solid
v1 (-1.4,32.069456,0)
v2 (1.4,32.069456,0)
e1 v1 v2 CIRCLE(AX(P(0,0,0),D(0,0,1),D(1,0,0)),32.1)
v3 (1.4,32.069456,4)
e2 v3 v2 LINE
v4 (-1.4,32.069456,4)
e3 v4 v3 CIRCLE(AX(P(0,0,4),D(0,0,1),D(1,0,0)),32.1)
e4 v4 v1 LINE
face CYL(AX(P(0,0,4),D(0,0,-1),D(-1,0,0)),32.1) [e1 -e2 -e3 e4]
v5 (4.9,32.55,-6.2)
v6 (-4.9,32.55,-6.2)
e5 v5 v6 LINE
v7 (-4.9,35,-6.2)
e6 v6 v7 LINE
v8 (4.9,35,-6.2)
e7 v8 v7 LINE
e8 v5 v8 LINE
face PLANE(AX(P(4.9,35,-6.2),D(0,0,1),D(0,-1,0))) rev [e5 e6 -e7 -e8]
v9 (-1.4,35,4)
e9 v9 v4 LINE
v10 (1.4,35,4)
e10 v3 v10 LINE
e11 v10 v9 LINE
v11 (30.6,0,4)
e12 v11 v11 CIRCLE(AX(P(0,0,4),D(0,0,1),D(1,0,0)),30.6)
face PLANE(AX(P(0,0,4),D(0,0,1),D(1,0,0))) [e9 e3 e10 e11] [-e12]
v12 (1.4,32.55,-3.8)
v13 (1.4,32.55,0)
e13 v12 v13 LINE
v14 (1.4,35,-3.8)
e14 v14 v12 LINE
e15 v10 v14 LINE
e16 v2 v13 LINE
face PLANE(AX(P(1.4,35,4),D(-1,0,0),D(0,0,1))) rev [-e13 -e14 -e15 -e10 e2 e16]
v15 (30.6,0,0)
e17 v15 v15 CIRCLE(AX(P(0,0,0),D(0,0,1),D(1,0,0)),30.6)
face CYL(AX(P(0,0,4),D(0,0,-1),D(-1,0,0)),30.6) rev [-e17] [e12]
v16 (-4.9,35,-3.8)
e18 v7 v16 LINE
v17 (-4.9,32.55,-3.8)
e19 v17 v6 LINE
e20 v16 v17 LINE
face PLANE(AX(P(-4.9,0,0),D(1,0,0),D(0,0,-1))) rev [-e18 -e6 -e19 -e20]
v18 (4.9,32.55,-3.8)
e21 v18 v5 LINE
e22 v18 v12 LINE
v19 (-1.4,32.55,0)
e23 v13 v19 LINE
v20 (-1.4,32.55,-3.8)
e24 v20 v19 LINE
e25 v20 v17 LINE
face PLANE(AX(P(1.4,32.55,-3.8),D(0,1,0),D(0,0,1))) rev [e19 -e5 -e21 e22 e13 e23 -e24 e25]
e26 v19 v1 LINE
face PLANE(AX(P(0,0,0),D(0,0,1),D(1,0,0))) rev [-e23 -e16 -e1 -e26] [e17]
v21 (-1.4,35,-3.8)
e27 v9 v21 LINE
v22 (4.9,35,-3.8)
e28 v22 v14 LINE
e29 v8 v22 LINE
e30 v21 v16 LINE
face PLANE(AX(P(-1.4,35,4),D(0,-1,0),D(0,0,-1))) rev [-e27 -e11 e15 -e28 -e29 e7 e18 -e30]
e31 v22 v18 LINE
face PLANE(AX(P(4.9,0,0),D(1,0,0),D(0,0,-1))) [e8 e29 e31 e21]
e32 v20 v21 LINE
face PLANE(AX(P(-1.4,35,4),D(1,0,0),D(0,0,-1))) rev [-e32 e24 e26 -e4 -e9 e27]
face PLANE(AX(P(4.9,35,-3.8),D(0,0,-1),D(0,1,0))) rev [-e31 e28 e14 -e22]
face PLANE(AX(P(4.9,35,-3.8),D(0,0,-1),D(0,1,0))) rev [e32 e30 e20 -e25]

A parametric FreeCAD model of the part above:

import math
import FreeCAD as App
import Part
import Sketcher

V = App.Vector
Q = App.Units.Quantity


def add_polygon(sketch, points):
    """Adds a closed chain of lines whose ends are joined by coincident constraints."""
    first, n = sketch.GeometryCount, len(points)
    for a, b in zip(points, points[1:] + points[:1]):
        sketch.addGeometry(Part.LineSegment(App.Vector(*a, 0), App.Vector(*b, 0)), False)
    for i in range(n):
        sketch.addConstraint(Sketcher.Constraint("Coincident", first + i, 2, first + (i + 1) % n, 1))

doc = App.newDocument("Part")
body = doc.addObject("PartDesign::Body", "Body")

sketch1 = body.newObject("Sketcher::SketchObject", "Sketch")
sketch1.AttachmentSupport = (doc.getObject("XY_Plane"), [""])
sketch1.MapMode = "FlatFace"
sketch1.addGeometry(Part.LineSegment(V(1.4, 35, 0), V(-1.4, 35, 0)), False)
sketch1.addGeometry(Part.LineSegment(V(-1.4, 35, 0), V(-1.4, 32.1, 0)), False)
sketch1.addGeometry(Part.ArcOfCircle(Part.Circle(V(0, 0, 0), V(0, 0, 1), 32.1), math.radians(92), math.radians(448)), False)
sketch1.addGeometry(Part.LineSegment(V(1.4, 32.1, 0), V(1.4, 35, 0)), False)
sketch1.addGeometry(Part.Circle(V(0, 0, 0), V(0, 0, 1), 30.6), False)
sketch1.addConstraint(Sketcher.Constraint("Coincident", 0, 2, 1, 1))
sketch1.addConstraint(Sketcher.Constraint("Coincident", 1, 2, 2, 1))
sketch1.addConstraint(Sketcher.Constraint("Coincident", 2, 2, 3, 1))
sketch1.addConstraint(Sketcher.Constraint("Coincident", 3, 2, 0, 1))
sketch1.addConstraint(Sketcher.Constraint("Horizontal", 0))
sketch1.addConstraint(Sketcher.Constraint("Vertical", 1))
sketch1.addConstraint(Sketcher.Constraint("Vertical", 3))
sketch1.addConstraint(Sketcher.Constraint("Coincident", 2, 3, -1, 1))
sketch1.addConstraint(Sketcher.Constraint("Coincident", 4, 3, -1, 1))
sketch1.addConstraint(Sketcher.Constraint("Horizontal", 1, 2, 2, 2))
sketch1.addConstraint(Sketcher.Constraint("Diameter", 4, Q("61.2 mm")))
sketch1.addConstraint(Sketcher.Constraint("Radius", 2, Q("32.1 mm")))
sketch1.addConstraint(Sketcher.Constraint("DistanceX", 0, 2, 0, 1, Q("2.8 mm")))
sketch1.addConstraint(Sketcher.Constraint("DistanceY", -1, 1, 0, 2, Q("35 mm")))
pad1 = body.newObject("PartDesign::Pad", "Pad")
pad1.Profile = sketch1
pad1.Length = 4

sketch2 = body.newObject("Sketcher::SketchObject", "Sketch001")
sketch2.AttachmentSupport = (doc.getObject("XY_Plane"), [""])
sketch2.MapMode = "FlatFace"
add_polygon(sketch2, [(1.4, 35), (1.4, 32.5), (-1.4, 32.5), (-1.4, 35)])
sketch2.addConstraint(Sketcher.Constraint("Vertical", 0))
sketch2.addConstraint(Sketcher.Constraint("Horizontal", 1))
sketch2.addConstraint(Sketcher.Constraint("Vertical", 2))
sketch2.addConstraint(Sketcher.Constraint("Horizontal", 3))
sketch2.addConstraint(Sketcher.Constraint("DistanceX", 1, 2, 1, 1, Q("2.8 mm")))
sketch2.addConstraint(Sketcher.Constraint("DistanceY", -1, 1, 2, 2, Q("35 mm")))
sketch2.addConstraint(Sketcher.Constraint("DistanceY", 0, 2, 0, 1, Q("2.45 mm")))
sketch2.addConstraint(Sketcher.Constraint("DistanceX", -1, 1, 0, 2, Q("1.4 mm")))
pad2 = body.newObject("PartDesign::Pad", "Pad001")
pad2.Profile = sketch2
pad2.Length = 3.8
pad2.Reversed = True

sketch3 = body.newObject("Sketcher::SketchObject", "Sketch002")
sketch3.AttachmentSupport = (doc.getObject("YZ_Plane"), [""])
sketch3.MapMode = "FlatFace"
sketch3.AttachmentOffset = App.Placement(V(0, 0, -4.9), App.Rotation())
add_polygon(sketch3, [(35, -3.8), (32.5, -3.8), (32.5, -6.2), (35, -6.2)])
sketch3.addConstraint(Sketcher.Constraint("Horizontal", 0))
sketch3.addConstraint(Sketcher.Constraint("Vertical", 1))
sketch3.addConstraint(Sketcher.Constraint("Horizontal", 2))
sketch3.addConstraint(Sketcher.Constraint("Vertical", 3))
sketch3.addConstraint(Sketcher.Constraint("DistanceY", 1, 2, 1, 1, Q("2.4 mm")))
sketch3.addConstraint(Sketcher.Constraint("DistanceX", -1, 1, 2, 2, Q("35 mm")))
sketch3.addConstraint(Sketcher.Constraint("DistanceX", 0, 2, 0, 1, Q("2.45 mm")))
sketch3.addConstraint(Sketcher.Constraint("DistanceY", 0, 2, -1, 1, Q("3.8 mm")))
pad3 = body.newObject("PartDesign::Pad", "Pad002")
pad3.Profile = sketch3
pad3.Length = 9.8

doc.recompute()
